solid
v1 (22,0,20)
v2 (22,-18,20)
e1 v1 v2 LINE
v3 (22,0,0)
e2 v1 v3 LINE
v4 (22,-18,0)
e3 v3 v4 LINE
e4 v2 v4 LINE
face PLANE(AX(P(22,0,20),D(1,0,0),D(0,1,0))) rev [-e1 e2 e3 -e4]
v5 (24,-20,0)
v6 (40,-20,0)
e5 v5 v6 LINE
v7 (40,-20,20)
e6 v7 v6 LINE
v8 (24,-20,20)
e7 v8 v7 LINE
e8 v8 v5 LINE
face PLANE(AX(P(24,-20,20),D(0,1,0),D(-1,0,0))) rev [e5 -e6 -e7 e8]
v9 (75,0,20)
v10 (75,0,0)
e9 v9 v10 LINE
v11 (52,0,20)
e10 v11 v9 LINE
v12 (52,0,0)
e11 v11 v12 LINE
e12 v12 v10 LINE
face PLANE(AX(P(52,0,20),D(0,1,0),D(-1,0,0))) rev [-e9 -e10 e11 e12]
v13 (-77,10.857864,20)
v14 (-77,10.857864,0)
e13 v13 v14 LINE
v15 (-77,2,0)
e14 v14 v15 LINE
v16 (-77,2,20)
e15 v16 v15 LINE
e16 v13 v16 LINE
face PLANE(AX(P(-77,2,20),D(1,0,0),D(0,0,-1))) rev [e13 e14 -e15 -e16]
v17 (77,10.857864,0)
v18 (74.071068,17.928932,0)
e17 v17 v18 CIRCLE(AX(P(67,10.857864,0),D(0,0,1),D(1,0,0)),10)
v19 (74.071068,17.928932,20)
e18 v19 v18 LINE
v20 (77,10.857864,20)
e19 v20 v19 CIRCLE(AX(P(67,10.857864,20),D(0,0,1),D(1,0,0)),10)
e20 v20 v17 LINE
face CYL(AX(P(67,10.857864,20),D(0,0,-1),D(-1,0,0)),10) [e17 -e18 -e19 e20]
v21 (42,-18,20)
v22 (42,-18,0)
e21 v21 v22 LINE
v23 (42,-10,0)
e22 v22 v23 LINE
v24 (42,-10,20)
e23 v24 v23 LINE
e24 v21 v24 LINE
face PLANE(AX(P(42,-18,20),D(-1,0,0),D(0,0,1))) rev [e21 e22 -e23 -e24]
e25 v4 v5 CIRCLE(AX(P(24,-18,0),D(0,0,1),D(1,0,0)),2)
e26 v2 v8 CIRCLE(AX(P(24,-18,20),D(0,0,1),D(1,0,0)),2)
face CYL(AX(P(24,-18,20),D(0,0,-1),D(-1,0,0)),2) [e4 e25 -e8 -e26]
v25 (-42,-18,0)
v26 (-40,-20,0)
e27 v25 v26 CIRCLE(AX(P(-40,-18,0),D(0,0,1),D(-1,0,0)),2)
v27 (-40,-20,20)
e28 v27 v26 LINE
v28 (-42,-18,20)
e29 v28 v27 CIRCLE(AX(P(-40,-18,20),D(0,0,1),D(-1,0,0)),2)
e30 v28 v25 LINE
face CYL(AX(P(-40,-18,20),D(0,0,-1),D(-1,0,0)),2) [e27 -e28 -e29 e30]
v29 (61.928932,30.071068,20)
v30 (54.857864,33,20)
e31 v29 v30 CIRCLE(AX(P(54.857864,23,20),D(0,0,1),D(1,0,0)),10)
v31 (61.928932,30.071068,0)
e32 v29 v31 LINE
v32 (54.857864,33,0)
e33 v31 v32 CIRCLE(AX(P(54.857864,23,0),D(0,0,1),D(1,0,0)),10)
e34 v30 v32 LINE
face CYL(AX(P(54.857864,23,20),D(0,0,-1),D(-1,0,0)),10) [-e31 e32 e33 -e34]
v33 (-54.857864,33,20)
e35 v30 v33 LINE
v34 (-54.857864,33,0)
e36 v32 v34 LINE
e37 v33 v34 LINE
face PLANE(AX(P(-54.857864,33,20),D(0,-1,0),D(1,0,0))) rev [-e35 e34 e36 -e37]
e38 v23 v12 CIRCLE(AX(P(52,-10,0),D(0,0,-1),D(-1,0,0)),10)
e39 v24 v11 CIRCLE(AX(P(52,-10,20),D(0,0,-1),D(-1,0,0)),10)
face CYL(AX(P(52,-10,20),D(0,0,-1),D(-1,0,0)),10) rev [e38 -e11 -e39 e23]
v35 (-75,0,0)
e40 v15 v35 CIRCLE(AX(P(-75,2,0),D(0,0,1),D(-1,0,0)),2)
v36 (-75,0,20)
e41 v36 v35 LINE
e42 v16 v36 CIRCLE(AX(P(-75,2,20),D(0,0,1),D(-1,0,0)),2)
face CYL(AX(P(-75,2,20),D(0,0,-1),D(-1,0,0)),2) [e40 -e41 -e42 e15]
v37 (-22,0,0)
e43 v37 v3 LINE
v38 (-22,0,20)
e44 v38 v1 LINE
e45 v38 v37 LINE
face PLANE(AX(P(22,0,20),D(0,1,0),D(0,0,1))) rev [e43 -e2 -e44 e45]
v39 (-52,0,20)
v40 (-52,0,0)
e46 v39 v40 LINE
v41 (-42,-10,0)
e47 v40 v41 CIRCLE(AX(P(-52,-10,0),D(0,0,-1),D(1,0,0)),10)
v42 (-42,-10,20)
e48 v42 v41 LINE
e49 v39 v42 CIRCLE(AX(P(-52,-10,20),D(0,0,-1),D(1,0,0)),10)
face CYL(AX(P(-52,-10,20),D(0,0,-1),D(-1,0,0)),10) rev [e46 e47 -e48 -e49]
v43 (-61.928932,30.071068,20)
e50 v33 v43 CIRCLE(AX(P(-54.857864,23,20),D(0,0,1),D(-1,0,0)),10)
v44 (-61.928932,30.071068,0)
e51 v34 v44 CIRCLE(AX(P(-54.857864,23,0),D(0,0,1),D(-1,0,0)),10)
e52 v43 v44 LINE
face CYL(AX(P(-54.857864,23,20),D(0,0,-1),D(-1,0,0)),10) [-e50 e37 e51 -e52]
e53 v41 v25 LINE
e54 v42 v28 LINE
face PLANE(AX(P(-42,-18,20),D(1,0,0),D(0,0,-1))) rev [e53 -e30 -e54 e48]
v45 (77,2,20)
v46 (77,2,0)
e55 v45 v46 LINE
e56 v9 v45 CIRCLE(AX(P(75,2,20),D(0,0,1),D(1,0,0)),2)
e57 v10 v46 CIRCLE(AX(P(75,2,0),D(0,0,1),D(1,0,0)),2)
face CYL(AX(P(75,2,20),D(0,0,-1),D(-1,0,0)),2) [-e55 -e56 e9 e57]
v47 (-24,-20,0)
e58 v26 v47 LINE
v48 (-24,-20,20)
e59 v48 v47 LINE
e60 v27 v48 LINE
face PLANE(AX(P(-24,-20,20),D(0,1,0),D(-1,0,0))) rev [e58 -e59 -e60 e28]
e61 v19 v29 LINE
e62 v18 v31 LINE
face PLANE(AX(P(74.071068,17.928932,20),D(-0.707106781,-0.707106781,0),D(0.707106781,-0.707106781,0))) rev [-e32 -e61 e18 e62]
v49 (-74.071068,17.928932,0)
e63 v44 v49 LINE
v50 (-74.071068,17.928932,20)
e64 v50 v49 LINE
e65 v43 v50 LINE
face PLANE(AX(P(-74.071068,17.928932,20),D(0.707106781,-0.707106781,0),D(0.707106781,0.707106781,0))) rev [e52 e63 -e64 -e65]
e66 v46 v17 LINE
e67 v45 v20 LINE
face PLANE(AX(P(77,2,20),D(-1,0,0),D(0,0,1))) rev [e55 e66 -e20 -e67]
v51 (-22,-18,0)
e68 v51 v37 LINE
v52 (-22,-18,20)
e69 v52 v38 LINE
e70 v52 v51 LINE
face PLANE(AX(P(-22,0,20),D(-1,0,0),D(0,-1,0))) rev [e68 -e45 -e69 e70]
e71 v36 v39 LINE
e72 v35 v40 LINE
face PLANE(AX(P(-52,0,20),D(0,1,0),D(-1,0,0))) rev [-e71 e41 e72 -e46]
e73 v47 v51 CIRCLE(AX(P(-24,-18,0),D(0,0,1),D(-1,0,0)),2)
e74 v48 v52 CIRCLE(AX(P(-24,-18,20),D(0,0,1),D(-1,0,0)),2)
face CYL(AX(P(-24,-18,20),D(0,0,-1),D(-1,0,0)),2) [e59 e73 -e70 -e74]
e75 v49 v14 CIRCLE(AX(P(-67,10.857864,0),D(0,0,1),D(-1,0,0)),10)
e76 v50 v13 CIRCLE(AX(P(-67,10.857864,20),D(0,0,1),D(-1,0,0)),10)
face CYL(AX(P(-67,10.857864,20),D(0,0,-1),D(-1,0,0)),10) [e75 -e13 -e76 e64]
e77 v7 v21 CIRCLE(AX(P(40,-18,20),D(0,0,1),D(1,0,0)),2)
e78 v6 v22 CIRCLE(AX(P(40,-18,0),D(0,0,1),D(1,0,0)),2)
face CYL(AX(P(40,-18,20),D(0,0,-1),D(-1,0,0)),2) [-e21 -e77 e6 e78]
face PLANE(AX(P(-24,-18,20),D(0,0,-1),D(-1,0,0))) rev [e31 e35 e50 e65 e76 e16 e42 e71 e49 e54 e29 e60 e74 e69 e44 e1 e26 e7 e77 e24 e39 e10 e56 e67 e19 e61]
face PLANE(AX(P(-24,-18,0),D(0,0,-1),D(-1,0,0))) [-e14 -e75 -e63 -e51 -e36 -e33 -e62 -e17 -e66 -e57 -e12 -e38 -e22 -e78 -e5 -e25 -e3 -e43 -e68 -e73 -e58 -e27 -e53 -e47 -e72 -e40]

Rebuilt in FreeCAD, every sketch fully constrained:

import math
import FreeCAD as App
import Part
import Sketcher

V = App.Vector

doc = App.newDocument("Part")
params = doc.addObject("Spreadsheet::Sheet", "Params")
for row, (alias, value) in enumerate([
    ("sketch1_radius", "2 mm"),
    ("sketch1_radius2", "10 mm"),
    ("sketch1_width", "44 mm"),
    ("sketch1_width2", "16 mm"),
    ("sketch1_width3", "23 mm"),
    ("pad1_length", "20 mm"),
], start=1):
    params.set(f"A{row}", alias)
    params.set(f"B{row}", "=" + value)
    params.setAlias(f"B{row}", alias)

body = doc.addObject("PartDesign::Body", "Body")

sketch1 = body.newObject("Sketcher::SketchObject", "Sketch")
sketch1.AttachmentSupport = (doc.getObject("XY_Plane"), [""])
sketch1.MapMode = "FlatFace"
sketch1.addGeometry([
    Part.LineSegment(V(-22, 0, 0), V(22, 0, 0)),
    Part.LineSegment(V(22, 0, 0), V(22, -18, 0)),
    Part.ArcOfCircle(Part.Circle(V(24, -18, 0), V(0, 0, 1), 2), math.radians(-180), math.radians(-90)),
    Part.LineSegment(V(24, -20, 0), V(40, -20, 0)),
    Part.ArcOfCircle(Part.Circle(V(40, -18, 0), V(0, 0, 1), 2), math.radians(-90), math.radians(0)),
    Part.LineSegment(V(42, -18, 0), V(42, -10, 0)),
    Part.ArcOfCircle(Part.Circle(V(52, -10, 0), V(0, 0, 1), 10), math.radians(90), math.radians(180)),
    Part.LineSegment(V(52, 0, 0), V(75, 0, 0)),
    Part.ArcOfCircle(Part.Circle(V(75, 2, 0), V(0, 0, 1), 2), math.radians(-90), math.radians(0)),
    Part.LineSegment(V(77, 2, 0), V(77, 10.9, 0)),
    Part.ArcOfCircle(Part.Circle(V(67, 10.9, 0), V(0, 0, 1), 10), math.radians(0), math.radians(45)),
    Part.LineSegment(V(74.1, 17.9, 0), V(61.9, 30.1, 0)),
    Part.ArcOfCircle(Part.Circle(V(54.9, 23, 0), V(0, 0, 1), 10), math.radians(45), math.radians(90)),
    Part.LineSegment(V(54.9, 33, 0), V(-54.9, 33, 0)),
    Part.ArcOfCircle(Part.Circle(V(-54.9, 23, 0), V(0, 0, 1), 10), math.radians(90), math.radians(135)),
    Part.LineSegment(V(-61.9, 30.1, 0), V(-74.1, 17.9, 0)),
    Part.ArcOfCircle(Part.Circle(V(-67, 10.9, 0), V(0, 0, 1), 10), math.radians(135), math.radians(180)),
    Part.LineSegment(V(-77, 10.9, 0), V(-77, 2, 0)),
    Part.ArcOfCircle(Part.Circle(V(-75, 2, 0), V(0, 0, 1), 2), math.radians(-180), math.radians(-90)),
    Part.LineSegment(V(-75, 0, 0), V(-52, 0, 0)),
    Part.ArcOfCircle(Part.Circle(V(-52, -10, 0), V(0, 0, 1), 10), math.radians(0), math.radians(90)),
    Part.LineSegment(V(-42, -10, 0), V(-42, -18, 0)),
    Part.ArcOfCircle(Part.Circle(V(-40, -18, 0), V(0, 0, 1), 2), math.radians(-180), math.radians(-90)),
    Part.LineSegment(V(-40, -20, 0), V(-24, -20, 0)),
    Part.ArcOfCircle(Part.Circle(V(-24, -18, 0), V(0, 0, 1), 2), math.radians(-90), math.radians(0)),
    Part.LineSegment(V(-22, -18, 0), V(-22, 0, 0)),
], False)
sketch1.addConstraint([
    Sketcher.Constraint("Coincident", 0, 2, 1, 1),
    Sketcher.Constraint("Tangent", 1, 2, 2, 1),
    Sketcher.Constraint("Tangent", 2, 2, 3, 1),
    Sketcher.Constraint("Tangent", 3, 2, 4, 1),
    Sketcher.Constraint("Tangent", 4, 2, 5, 1),
    Sketcher.Constraint("Tangent", 5, 2, 6, 2),
    Sketcher.Constraint("Tangent", 6, 1, 7, 1),
    Sketcher.Constraint("Tangent", 7, 2, 8, 1),
    Sketcher.Constraint("Tangent", 8, 2, 9, 1),
    Sketcher.Constraint("Tangent", 9, 2, 10, 1),
    Sketcher.Constraint("Tangent", 10, 2, 11, 1),
    Sketcher.Constraint("Tangent", 11, 2, 12, 1),
    Sketcher.Constraint("Tangent", 12, 2, 13, 1),
    Sketcher.Constraint("Tangent", 13, 2, 14, 1),
    Sketcher.Constraint("Tangent", 14, 2, 15, 1),
    Sketcher.Constraint("Tangent", 15, 2, 16, 1),
    Sketcher.Constraint("Tangent", 16, 2, 17, 1),
    Sketcher.Constraint("Tangent", 17, 2, 18, 1),
    Sketcher.Constraint("Tangent", 18, 2, 19, 1),
    Sketcher.Constraint("Tangent", 19, 2, 20, 2),
    Sketcher.Constraint("Tangent", 20, 1, 21, 1),
    Sketcher.Constraint("Tangent", 21, 2, 22, 1),
    Sketcher.Constraint("Tangent", 22, 2, 23, 1),
    Sketcher.Constraint("Tangent", 23, 2, 24, 1),
    Sketcher.Constraint("Tangent", 24, 2, 25, 1),
    Sketcher.Constraint("Coincident", 25, 2, 0, 1),
    Sketcher.Constraint("Horizontal", 0),
    Sketcher.Constraint("Vertical", 1),
    Sketcher.Constraint("Horizontal", 3),
    Sketcher.Constraint("Vertical", 5),
    Sketcher.Constraint("Horizontal", 7),
    Sketcher.Constraint("Vertical", 9),
    Sketcher.Constraint("Horizontal", 13),
    Sketcher.Constraint("Vertical", 17),
    Sketcher.Constraint("Horizontal", 19),
    Sketcher.Constraint("Vertical", 21),
    Sketcher.Constraint("Horizontal", 23),
    Sketcher.Constraint("Vertical", 25),
    Sketcher.Constraint("Equal", 2, 4),
    Sketcher.Constraint("Equal", 4, 8),
    Sketcher.Constraint("Equal", 6, 10),
    Sketcher.Constraint("Equal", 10, 12),
    Sketcher.Constraint("Equal", 12, 14),
    Sketcher.Constraint("Equal", 14, 16),
    Sketcher.Constraint("Equal", 8, 18),
    Sketcher.Constraint("Equal", 16, 20),
    Sketcher.Constraint("Equal", 18, 22),
    Sketcher.Constraint("Equal", 22, 24),
    Sketcher.Constraint("Symmetric", 7, 2, 18, 2, -1, 1),
    Sketcher.Constraint("Symmetric", 0, 2, 25, 2, -1, 1),
    Sketcher.Constraint("Symmetric", 6, 3, 20, 3, -2),
    Sketcher.Constraint("Symmetric", 11, 2, 14, 2, -2),
    Sketcher.Constraint("Perpendicular", 11, 15),
    Sketcher.Constraint("Horizontal", 4, 3, 22, 3),
    Sketcher.Constraint("Radius", 2, 2.0),
    Sketcher.Constraint("Radius", 6, 10.0),
    Sketcher.Constraint("DistanceX", 0, 1, 0, 2, 44.0),
    Sketcher.Constraint("DistanceX", 3, 1, 3, 2, 16.0),
    Sketcher.Constraint("DistanceX", 7, 1, 7, 2, 23.0),
    Sketcher.Constraint("DistanceY", 1, 2, 1, 1, 18.0),
    Sketcher.Constraint("DistanceY", -1, 1, 12, 3, 23.0),
    Sketcher.Constraint("DistanceX", 13, 2, 13, 1, 109.715729),
])
sketch1.setExpression("Constraints[54]", "Params.sketch1_radius")
sketch1.setExpression("Constraints[55]", "Params.sketch1_radius2")
sketch1.setExpression("Constraints[56]", "Params.sketch1_width")
sketch1.setExpression("Constraints[57]", "Params.sketch1_width2")
sketch1.setExpression("Constraints[58]", "Params.sketch1_width3")
pad1 = body.newObject("PartDesign::Pad", "Pad")
pad1.Profile = sketch1
pad1.setExpression("Length", "Params.pad1_length")

doc.recompute()
